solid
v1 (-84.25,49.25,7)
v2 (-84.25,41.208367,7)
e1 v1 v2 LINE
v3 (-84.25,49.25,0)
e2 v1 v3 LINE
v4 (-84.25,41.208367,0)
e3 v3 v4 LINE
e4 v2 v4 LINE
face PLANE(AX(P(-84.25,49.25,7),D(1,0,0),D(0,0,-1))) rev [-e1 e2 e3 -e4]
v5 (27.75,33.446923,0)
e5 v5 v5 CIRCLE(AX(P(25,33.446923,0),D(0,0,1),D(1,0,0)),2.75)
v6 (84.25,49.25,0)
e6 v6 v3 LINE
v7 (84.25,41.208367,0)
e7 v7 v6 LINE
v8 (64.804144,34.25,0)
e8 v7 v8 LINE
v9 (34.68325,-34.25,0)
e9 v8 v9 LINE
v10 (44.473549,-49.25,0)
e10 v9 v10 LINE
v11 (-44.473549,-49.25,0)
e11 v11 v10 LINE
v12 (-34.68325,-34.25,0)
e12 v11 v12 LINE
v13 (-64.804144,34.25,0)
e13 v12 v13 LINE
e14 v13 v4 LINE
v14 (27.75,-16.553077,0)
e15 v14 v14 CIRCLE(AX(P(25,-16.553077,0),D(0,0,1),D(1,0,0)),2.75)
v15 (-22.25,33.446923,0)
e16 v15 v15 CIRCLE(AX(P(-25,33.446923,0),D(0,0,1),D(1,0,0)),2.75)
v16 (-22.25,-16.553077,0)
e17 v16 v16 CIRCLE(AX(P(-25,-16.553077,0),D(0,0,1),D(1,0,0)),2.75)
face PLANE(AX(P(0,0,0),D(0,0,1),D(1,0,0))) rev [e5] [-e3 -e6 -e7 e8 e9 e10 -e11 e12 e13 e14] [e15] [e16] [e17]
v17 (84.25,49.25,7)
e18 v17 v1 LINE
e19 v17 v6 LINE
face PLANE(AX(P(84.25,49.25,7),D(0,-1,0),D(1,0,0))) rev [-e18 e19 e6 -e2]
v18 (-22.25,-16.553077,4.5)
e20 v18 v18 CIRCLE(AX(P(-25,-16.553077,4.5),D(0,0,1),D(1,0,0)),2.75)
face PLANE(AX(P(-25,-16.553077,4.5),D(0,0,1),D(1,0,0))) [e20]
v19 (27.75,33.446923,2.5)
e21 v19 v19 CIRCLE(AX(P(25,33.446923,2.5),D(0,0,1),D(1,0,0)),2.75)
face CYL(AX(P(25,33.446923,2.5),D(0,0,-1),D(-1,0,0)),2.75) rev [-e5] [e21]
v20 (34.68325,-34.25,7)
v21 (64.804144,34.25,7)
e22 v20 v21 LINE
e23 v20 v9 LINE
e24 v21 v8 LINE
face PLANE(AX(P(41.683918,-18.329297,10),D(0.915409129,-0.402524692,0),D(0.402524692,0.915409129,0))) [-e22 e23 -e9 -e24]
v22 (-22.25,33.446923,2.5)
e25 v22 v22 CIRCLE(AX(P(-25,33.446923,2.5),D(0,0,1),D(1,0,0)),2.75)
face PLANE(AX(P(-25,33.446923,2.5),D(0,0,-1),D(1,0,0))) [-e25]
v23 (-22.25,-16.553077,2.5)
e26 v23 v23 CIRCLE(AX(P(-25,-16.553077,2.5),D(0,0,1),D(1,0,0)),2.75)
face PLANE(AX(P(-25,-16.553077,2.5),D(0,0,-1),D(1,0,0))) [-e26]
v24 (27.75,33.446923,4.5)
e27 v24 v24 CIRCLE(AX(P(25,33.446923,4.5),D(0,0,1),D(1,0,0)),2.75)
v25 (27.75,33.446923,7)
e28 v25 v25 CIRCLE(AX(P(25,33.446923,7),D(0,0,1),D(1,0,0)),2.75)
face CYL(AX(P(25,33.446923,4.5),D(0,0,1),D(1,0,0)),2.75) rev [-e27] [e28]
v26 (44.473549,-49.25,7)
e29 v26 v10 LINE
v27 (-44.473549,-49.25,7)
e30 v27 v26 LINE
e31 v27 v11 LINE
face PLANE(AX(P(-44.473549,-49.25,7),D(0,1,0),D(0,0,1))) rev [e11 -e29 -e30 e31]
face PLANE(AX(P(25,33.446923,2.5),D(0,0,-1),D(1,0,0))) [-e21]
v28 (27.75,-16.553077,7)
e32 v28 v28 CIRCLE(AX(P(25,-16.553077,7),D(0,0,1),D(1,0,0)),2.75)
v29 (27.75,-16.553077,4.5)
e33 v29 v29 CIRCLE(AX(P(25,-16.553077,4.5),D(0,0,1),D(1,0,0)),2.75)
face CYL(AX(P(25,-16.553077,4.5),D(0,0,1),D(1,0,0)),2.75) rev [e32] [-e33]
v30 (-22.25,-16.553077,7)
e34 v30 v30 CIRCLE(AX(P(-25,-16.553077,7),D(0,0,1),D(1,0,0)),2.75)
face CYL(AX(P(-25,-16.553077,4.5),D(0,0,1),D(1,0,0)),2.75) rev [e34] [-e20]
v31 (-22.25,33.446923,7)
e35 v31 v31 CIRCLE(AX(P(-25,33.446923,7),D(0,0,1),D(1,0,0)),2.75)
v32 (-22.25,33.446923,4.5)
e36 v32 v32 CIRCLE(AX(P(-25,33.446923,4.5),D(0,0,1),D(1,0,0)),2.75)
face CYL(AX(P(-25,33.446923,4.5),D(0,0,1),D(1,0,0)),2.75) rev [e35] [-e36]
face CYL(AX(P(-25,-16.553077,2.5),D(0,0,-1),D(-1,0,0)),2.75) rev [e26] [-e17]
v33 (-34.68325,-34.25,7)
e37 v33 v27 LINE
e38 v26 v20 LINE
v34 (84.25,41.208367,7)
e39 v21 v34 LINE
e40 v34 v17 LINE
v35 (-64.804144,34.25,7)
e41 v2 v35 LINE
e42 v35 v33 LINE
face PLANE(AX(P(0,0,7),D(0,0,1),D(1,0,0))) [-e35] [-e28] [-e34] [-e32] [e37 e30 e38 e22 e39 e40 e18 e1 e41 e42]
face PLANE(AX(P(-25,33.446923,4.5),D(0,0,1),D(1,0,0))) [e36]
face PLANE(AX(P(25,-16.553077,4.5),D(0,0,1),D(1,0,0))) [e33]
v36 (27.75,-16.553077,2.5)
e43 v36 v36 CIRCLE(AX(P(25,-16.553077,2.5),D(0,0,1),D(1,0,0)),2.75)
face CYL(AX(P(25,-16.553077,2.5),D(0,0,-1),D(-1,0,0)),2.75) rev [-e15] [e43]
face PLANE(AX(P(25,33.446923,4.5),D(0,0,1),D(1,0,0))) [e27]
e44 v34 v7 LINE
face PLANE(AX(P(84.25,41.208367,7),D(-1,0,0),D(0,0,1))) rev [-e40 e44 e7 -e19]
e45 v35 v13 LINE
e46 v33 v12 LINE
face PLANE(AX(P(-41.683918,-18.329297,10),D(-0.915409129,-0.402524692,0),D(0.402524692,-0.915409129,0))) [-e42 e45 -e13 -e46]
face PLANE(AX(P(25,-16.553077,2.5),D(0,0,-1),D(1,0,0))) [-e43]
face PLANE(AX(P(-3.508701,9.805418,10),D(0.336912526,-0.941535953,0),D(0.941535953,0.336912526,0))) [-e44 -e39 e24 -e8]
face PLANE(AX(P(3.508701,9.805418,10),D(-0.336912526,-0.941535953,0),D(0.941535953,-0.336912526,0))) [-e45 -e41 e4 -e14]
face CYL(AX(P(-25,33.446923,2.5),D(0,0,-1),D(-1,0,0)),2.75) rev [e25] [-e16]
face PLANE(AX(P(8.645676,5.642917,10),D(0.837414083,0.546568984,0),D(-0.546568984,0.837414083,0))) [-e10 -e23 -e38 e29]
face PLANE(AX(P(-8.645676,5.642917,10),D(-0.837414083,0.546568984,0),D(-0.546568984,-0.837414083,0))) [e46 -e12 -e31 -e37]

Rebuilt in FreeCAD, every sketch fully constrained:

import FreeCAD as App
import Part
import Sketcher
Q = App.Units.Quantity

doc = App.newDocument("Part")
body = doc.addObject("PartDesign::Body", "Body")

# Sketch on XY plane
sketch1 = body.newObject("Sketcher::SketchObject", "Sketch")
sketch1.AttachmentSupport = (doc.getObject("XY_Plane"), [""])
sketch1.MapMode = "FlatFace"
sketch1.addGeometry(Part.LineSegment(App.Vector(-84.25, 41.208367, 0), App.Vector(-44.473549, -49.25, 0)), False)
sketch1.addGeometry(Part.LineSegment(App.Vector(-44.473549, -49.25, 0), App.Vector(44.473549, -49.25, 0)), False)
sketch1.addGeometry(Part.LineSegment(App.Vector(44.473549, -49.25, 0), App.Vector(84.25, 41.208367, 0)), False)
sketch1.addGeometry(Part.LineSegment(App.Vector(84.25, 41.208367, 0), App.Vector(84.25, 49.25, 0)), False)
sketch1.addGeometry(Part.LineSegment(App.Vector(84.25, 49.25, 0), App.Vector(-84.25, 49.25, 0)), False)
sketch1.addGeometry(Part.LineSegment(App.Vector(-84.25, 49.25, 0), App.Vector(-84.25, 41.208367, 0)), False)
sketch1.addConstraint(Sketcher.Constraint("Coincident", 0, 2, 1, 1))
sketch1.addConstraint(Sketcher.Constraint("Coincident", 1, 2, 2, 1))
sketch1.addConstraint(Sketcher.Constraint("Coincident", 2, 2, 3, 1))
sketch1.addConstraint(Sketcher.Constraint("Coincident", 3, 2, 4, 1))
sketch1.addConstraint(Sketcher.Constraint("Coincident", 4, 2, 5, 1))
sketch1.addConstraint(Sketcher.Constraint("Coincident", 5, 2, 0, 1))
sketch1.addConstraint(Sketcher.Constraint("Horizontal", 1))
sketch1.addConstraint(Sketcher.Constraint("Vertical", 3))
sketch1.addConstraint(Sketcher.Constraint("Horizontal", 4))
sketch1.addConstraint(Sketcher.Constraint("Vertical", 5))
sketch1.addConstraint(Sketcher.Constraint("Symmetric", 2, 2, 5, 2, -2))
sketch1.addConstraint(Sketcher.Constraint("Equal", 0, 2))
sketch1.addConstraint(Sketcher.Constraint("DistanceX", 4, 2, 4, 1, Q("168.5 mm")))
sketch1.addConstraint(Sketcher.Constraint("DistanceY", 1, 2, 3, 2, Q("98.5 mm")))
sketch1.addConstraint(Sketcher.Constraint("DistanceY", 0, 2, -1, 1, Q("49.25 mm")))
sketch1.addConstraint(Sketcher.Constraint("DistanceX", 1, 1, 1, 2, Q("88.947098 mm")))
sketch1.addConstraint(Sketcher.Constraint("Distance", 0, Q("98.817418 mm")))
pad1 = body.newObject("PartDesign::Pad", "Pad")
pad1.Profile = sketch1
pad1.Length = 7

# Sketch on XY plane
sketch2 = body.newObject("Sketcher::SketchObject", "Sketch001")
sketch2.AttachmentSupport = (doc.getObject("XY_Plane"), [""])
sketch2.MapMode = "FlatFace"
sketch2.addGeometry(Part.LineSegment(App.Vector(-34.68325, -34.25, 0), App.Vector(-44.473549, -49.25, 0)), False)
sketch2.addGeometry(Part.LineSegment(App.Vector(-44.473549, -49.25, 0), App.Vector(-84.25, 41.208367, 0)), False)
sketch2.addGeometry(Part.LineSegment(App.Vector(-84.25, 41.208367, 0), App.Vector(-64.804144, 34.25, 0)), False)
sketch2.addGeometry(Part.LineSegment(App.Vector(-64.804144, 34.25, 0), App.Vector(-34.68325, -34.25, 0)), False)
sketch2.addGeometry(Part.LineSegment(App.Vector(34.68325, -34.25, 0), App.Vector(64.804144, 34.25, 0)), False)
sketch2.addGeometry(Part.LineSegment(App.Vector(64.804144, 34.25, 0), App.Vector(84.25, 41.208367, 0)), False)
sketch2.addGeometry(Part.LineSegment(App.Vector(84.25, 41.208367, 0), App.Vector(44.473549, -49.25, 0)), False)
sketch2.addGeometry(Part.LineSegment(App.Vector(44.473549, -49.25, 0), App.Vector(34.68325, -34.25, 0)), False)
sketch2.addConstraint(Sketcher.Constraint("Coincident", 0, 2, 1, 1))
sketch2.addConstraint(Sketcher.Constraint("Coincident", 1, 2, 2, 1))
sketch2.addConstraint(Sketcher.Constraint("Coincident", 2, 2, 3, 1))
sketch2.addConstraint(Sketcher.Constraint("Coincident", 3, 2, 0, 1))
sketch2.addConstraint(Sketcher.Constraint("Coincident", 4, 2, 5, 1))
sketch2.addConstraint(Sketcher.Constraint("Coincident", 5, 2, 6, 1))
sketch2.addConstraint(Sketcher.Constraint("Coincident", 6, 2, 7, 1))
sketch2.addConstraint(Sketcher.Constraint("Coincident", 7, 2, 4, 1))
sketch2.addConstraint(Sketcher.Constraint("Symmetric", 2, 2, 4, 2, -2))
sketch2.addConstraint(Sketcher.Constraint("Symmetric", 1, 2, 5, 2, -2))
sketch2.addConstraint(Sketcher.Constraint("Symmetric", 0, 2, 6, 2, -2))
sketch2.addConstraint(Sketcher.Constraint("Symmetric", 3, 2, 7, 2, -2))
sketch2.addConstraint(Sketcher.Constraint("Parallel", 1, 3))
sketch2.addConstraint(Sketcher.Constraint("DistanceY", 0, 2, 3, 2, Q("15 mm")))
sketch2.addConstraint(Sketcher.Constraint("DistanceY", 0, 2, 2, 2, Q("83.5 mm")))
sketch2.addConstraint(Sketcher.Constraint("DistanceX", 1, 2, 5, 2, Q("168.5 mm")))
sketch2.addConstraint(Sketcher.Constraint("DistanceY", 0, 2, -1, 1, Q("49.25 mm")))
sketch2.addConstraint(Sketcher.Constraint("DistanceX", 0, 2, 3, 2, Q("9.7903 mm")))
sketch2.addConstraint(Sketcher.Constraint("DistanceX", 3, 2, 6, 2, Q("79.156799 mm")))
sketch2.addConstraint(Sketcher.Constraint("Distance", 1, Q("98.817418 mm")))
pocket1 = body.newObject("PartDesign::Pocket", "Pocket")
pocket1.Profile = sketch2
pocket1.Length = 10
pocket1.Reversed = True

# Sketch on XY plane
sketch3 = body.newObject("Sketcher::SketchObject", "Sketch002")
sketch3.AttachmentSupport = (doc.getObject("XY_Plane"), [""])
sketch3.MapMode = "FlatFace"
sketch3.AttachmentOffset = App.Placement(App.Vector(0, 0, 7), App.Rotation())
sketch3.addGeometry(Part.Circle(App.Vector(25, 33.446923, 0), App.Vector(0, 0, 1), 2.75), False)
sketch3.addGeometry(Part.Circle(App.Vector(-25, 33.446923, 0), App.Vector(0, 0, 1), 2.75), False)
sketch3.addGeometry(Part.Circle(App.Vector(-25, -16.553077, 0), App.Vector(0, 0, 1), 2.75), False)
sketch3.addGeometry(Part.Circle(App.Vector(25, -16.553077, 0), App.Vector(0, 0, 1), 2.75), False)
sketch3.addConstraint(Sketcher.Constraint("Equal", 0, 1))
sketch3.addConstraint(Sketcher.Constraint("Equal", 1, 2))
sketch3.addConstraint(Sketcher.Constraint("Equal", 2, 3))
sketch3.addConstraint(Sketcher.Constraint("Symmetric", 0, 3, 1, 3, -2))
sketch3.addConstraint(Sketcher.Constraint("Symmetric", 2, 3, 3, 3, -2))
sketch3.addConstraint(Sketcher.Constraint("Vertical", 1, 3, 2, 3))
sketch3.addConstraint(Sketcher.Constraint("Diameter", 0, Q("5.5 mm")))
sketch3.addConstraint(Sketcher.Constraint("DistanceX", -1, 1, 0, 3, Q("25 mm")))
sketch3.addConstraint(Sketcher.Constraint("DistanceY", 2, 3, 1, 3, Q("50 mm")))
sketch3.addConstraint(Sketcher.Constraint("DistanceY", -1, 1, 0, 3, Q("33.446923 mm")))
pocket2 = body.newObject("PartDesign::Pocket", "Pocket001")
pocket2.Profile = sketch3
pocket2.Length = 2.5
doc.recompute()

datumplane = body.newObject("PartDesign::Plane", "DatumPlane")
datumplane.AttachmentSupport = (doc.getObject("XY_Plane"), [""])
datumplane.MapMode = "FlatFace"
datumplane.AttachmentOffset = App.Placement(App.Vector(0, 0, 3.5), App.Rotation())
mirrored = body.newObject("PartDesign::Mirrored", "Mirrored")
mirrored.Originals = [pocket2]
mirrored.MirrorPlane = (datumplane, [""])
body.Tip = mirrored

doc.recompute()
